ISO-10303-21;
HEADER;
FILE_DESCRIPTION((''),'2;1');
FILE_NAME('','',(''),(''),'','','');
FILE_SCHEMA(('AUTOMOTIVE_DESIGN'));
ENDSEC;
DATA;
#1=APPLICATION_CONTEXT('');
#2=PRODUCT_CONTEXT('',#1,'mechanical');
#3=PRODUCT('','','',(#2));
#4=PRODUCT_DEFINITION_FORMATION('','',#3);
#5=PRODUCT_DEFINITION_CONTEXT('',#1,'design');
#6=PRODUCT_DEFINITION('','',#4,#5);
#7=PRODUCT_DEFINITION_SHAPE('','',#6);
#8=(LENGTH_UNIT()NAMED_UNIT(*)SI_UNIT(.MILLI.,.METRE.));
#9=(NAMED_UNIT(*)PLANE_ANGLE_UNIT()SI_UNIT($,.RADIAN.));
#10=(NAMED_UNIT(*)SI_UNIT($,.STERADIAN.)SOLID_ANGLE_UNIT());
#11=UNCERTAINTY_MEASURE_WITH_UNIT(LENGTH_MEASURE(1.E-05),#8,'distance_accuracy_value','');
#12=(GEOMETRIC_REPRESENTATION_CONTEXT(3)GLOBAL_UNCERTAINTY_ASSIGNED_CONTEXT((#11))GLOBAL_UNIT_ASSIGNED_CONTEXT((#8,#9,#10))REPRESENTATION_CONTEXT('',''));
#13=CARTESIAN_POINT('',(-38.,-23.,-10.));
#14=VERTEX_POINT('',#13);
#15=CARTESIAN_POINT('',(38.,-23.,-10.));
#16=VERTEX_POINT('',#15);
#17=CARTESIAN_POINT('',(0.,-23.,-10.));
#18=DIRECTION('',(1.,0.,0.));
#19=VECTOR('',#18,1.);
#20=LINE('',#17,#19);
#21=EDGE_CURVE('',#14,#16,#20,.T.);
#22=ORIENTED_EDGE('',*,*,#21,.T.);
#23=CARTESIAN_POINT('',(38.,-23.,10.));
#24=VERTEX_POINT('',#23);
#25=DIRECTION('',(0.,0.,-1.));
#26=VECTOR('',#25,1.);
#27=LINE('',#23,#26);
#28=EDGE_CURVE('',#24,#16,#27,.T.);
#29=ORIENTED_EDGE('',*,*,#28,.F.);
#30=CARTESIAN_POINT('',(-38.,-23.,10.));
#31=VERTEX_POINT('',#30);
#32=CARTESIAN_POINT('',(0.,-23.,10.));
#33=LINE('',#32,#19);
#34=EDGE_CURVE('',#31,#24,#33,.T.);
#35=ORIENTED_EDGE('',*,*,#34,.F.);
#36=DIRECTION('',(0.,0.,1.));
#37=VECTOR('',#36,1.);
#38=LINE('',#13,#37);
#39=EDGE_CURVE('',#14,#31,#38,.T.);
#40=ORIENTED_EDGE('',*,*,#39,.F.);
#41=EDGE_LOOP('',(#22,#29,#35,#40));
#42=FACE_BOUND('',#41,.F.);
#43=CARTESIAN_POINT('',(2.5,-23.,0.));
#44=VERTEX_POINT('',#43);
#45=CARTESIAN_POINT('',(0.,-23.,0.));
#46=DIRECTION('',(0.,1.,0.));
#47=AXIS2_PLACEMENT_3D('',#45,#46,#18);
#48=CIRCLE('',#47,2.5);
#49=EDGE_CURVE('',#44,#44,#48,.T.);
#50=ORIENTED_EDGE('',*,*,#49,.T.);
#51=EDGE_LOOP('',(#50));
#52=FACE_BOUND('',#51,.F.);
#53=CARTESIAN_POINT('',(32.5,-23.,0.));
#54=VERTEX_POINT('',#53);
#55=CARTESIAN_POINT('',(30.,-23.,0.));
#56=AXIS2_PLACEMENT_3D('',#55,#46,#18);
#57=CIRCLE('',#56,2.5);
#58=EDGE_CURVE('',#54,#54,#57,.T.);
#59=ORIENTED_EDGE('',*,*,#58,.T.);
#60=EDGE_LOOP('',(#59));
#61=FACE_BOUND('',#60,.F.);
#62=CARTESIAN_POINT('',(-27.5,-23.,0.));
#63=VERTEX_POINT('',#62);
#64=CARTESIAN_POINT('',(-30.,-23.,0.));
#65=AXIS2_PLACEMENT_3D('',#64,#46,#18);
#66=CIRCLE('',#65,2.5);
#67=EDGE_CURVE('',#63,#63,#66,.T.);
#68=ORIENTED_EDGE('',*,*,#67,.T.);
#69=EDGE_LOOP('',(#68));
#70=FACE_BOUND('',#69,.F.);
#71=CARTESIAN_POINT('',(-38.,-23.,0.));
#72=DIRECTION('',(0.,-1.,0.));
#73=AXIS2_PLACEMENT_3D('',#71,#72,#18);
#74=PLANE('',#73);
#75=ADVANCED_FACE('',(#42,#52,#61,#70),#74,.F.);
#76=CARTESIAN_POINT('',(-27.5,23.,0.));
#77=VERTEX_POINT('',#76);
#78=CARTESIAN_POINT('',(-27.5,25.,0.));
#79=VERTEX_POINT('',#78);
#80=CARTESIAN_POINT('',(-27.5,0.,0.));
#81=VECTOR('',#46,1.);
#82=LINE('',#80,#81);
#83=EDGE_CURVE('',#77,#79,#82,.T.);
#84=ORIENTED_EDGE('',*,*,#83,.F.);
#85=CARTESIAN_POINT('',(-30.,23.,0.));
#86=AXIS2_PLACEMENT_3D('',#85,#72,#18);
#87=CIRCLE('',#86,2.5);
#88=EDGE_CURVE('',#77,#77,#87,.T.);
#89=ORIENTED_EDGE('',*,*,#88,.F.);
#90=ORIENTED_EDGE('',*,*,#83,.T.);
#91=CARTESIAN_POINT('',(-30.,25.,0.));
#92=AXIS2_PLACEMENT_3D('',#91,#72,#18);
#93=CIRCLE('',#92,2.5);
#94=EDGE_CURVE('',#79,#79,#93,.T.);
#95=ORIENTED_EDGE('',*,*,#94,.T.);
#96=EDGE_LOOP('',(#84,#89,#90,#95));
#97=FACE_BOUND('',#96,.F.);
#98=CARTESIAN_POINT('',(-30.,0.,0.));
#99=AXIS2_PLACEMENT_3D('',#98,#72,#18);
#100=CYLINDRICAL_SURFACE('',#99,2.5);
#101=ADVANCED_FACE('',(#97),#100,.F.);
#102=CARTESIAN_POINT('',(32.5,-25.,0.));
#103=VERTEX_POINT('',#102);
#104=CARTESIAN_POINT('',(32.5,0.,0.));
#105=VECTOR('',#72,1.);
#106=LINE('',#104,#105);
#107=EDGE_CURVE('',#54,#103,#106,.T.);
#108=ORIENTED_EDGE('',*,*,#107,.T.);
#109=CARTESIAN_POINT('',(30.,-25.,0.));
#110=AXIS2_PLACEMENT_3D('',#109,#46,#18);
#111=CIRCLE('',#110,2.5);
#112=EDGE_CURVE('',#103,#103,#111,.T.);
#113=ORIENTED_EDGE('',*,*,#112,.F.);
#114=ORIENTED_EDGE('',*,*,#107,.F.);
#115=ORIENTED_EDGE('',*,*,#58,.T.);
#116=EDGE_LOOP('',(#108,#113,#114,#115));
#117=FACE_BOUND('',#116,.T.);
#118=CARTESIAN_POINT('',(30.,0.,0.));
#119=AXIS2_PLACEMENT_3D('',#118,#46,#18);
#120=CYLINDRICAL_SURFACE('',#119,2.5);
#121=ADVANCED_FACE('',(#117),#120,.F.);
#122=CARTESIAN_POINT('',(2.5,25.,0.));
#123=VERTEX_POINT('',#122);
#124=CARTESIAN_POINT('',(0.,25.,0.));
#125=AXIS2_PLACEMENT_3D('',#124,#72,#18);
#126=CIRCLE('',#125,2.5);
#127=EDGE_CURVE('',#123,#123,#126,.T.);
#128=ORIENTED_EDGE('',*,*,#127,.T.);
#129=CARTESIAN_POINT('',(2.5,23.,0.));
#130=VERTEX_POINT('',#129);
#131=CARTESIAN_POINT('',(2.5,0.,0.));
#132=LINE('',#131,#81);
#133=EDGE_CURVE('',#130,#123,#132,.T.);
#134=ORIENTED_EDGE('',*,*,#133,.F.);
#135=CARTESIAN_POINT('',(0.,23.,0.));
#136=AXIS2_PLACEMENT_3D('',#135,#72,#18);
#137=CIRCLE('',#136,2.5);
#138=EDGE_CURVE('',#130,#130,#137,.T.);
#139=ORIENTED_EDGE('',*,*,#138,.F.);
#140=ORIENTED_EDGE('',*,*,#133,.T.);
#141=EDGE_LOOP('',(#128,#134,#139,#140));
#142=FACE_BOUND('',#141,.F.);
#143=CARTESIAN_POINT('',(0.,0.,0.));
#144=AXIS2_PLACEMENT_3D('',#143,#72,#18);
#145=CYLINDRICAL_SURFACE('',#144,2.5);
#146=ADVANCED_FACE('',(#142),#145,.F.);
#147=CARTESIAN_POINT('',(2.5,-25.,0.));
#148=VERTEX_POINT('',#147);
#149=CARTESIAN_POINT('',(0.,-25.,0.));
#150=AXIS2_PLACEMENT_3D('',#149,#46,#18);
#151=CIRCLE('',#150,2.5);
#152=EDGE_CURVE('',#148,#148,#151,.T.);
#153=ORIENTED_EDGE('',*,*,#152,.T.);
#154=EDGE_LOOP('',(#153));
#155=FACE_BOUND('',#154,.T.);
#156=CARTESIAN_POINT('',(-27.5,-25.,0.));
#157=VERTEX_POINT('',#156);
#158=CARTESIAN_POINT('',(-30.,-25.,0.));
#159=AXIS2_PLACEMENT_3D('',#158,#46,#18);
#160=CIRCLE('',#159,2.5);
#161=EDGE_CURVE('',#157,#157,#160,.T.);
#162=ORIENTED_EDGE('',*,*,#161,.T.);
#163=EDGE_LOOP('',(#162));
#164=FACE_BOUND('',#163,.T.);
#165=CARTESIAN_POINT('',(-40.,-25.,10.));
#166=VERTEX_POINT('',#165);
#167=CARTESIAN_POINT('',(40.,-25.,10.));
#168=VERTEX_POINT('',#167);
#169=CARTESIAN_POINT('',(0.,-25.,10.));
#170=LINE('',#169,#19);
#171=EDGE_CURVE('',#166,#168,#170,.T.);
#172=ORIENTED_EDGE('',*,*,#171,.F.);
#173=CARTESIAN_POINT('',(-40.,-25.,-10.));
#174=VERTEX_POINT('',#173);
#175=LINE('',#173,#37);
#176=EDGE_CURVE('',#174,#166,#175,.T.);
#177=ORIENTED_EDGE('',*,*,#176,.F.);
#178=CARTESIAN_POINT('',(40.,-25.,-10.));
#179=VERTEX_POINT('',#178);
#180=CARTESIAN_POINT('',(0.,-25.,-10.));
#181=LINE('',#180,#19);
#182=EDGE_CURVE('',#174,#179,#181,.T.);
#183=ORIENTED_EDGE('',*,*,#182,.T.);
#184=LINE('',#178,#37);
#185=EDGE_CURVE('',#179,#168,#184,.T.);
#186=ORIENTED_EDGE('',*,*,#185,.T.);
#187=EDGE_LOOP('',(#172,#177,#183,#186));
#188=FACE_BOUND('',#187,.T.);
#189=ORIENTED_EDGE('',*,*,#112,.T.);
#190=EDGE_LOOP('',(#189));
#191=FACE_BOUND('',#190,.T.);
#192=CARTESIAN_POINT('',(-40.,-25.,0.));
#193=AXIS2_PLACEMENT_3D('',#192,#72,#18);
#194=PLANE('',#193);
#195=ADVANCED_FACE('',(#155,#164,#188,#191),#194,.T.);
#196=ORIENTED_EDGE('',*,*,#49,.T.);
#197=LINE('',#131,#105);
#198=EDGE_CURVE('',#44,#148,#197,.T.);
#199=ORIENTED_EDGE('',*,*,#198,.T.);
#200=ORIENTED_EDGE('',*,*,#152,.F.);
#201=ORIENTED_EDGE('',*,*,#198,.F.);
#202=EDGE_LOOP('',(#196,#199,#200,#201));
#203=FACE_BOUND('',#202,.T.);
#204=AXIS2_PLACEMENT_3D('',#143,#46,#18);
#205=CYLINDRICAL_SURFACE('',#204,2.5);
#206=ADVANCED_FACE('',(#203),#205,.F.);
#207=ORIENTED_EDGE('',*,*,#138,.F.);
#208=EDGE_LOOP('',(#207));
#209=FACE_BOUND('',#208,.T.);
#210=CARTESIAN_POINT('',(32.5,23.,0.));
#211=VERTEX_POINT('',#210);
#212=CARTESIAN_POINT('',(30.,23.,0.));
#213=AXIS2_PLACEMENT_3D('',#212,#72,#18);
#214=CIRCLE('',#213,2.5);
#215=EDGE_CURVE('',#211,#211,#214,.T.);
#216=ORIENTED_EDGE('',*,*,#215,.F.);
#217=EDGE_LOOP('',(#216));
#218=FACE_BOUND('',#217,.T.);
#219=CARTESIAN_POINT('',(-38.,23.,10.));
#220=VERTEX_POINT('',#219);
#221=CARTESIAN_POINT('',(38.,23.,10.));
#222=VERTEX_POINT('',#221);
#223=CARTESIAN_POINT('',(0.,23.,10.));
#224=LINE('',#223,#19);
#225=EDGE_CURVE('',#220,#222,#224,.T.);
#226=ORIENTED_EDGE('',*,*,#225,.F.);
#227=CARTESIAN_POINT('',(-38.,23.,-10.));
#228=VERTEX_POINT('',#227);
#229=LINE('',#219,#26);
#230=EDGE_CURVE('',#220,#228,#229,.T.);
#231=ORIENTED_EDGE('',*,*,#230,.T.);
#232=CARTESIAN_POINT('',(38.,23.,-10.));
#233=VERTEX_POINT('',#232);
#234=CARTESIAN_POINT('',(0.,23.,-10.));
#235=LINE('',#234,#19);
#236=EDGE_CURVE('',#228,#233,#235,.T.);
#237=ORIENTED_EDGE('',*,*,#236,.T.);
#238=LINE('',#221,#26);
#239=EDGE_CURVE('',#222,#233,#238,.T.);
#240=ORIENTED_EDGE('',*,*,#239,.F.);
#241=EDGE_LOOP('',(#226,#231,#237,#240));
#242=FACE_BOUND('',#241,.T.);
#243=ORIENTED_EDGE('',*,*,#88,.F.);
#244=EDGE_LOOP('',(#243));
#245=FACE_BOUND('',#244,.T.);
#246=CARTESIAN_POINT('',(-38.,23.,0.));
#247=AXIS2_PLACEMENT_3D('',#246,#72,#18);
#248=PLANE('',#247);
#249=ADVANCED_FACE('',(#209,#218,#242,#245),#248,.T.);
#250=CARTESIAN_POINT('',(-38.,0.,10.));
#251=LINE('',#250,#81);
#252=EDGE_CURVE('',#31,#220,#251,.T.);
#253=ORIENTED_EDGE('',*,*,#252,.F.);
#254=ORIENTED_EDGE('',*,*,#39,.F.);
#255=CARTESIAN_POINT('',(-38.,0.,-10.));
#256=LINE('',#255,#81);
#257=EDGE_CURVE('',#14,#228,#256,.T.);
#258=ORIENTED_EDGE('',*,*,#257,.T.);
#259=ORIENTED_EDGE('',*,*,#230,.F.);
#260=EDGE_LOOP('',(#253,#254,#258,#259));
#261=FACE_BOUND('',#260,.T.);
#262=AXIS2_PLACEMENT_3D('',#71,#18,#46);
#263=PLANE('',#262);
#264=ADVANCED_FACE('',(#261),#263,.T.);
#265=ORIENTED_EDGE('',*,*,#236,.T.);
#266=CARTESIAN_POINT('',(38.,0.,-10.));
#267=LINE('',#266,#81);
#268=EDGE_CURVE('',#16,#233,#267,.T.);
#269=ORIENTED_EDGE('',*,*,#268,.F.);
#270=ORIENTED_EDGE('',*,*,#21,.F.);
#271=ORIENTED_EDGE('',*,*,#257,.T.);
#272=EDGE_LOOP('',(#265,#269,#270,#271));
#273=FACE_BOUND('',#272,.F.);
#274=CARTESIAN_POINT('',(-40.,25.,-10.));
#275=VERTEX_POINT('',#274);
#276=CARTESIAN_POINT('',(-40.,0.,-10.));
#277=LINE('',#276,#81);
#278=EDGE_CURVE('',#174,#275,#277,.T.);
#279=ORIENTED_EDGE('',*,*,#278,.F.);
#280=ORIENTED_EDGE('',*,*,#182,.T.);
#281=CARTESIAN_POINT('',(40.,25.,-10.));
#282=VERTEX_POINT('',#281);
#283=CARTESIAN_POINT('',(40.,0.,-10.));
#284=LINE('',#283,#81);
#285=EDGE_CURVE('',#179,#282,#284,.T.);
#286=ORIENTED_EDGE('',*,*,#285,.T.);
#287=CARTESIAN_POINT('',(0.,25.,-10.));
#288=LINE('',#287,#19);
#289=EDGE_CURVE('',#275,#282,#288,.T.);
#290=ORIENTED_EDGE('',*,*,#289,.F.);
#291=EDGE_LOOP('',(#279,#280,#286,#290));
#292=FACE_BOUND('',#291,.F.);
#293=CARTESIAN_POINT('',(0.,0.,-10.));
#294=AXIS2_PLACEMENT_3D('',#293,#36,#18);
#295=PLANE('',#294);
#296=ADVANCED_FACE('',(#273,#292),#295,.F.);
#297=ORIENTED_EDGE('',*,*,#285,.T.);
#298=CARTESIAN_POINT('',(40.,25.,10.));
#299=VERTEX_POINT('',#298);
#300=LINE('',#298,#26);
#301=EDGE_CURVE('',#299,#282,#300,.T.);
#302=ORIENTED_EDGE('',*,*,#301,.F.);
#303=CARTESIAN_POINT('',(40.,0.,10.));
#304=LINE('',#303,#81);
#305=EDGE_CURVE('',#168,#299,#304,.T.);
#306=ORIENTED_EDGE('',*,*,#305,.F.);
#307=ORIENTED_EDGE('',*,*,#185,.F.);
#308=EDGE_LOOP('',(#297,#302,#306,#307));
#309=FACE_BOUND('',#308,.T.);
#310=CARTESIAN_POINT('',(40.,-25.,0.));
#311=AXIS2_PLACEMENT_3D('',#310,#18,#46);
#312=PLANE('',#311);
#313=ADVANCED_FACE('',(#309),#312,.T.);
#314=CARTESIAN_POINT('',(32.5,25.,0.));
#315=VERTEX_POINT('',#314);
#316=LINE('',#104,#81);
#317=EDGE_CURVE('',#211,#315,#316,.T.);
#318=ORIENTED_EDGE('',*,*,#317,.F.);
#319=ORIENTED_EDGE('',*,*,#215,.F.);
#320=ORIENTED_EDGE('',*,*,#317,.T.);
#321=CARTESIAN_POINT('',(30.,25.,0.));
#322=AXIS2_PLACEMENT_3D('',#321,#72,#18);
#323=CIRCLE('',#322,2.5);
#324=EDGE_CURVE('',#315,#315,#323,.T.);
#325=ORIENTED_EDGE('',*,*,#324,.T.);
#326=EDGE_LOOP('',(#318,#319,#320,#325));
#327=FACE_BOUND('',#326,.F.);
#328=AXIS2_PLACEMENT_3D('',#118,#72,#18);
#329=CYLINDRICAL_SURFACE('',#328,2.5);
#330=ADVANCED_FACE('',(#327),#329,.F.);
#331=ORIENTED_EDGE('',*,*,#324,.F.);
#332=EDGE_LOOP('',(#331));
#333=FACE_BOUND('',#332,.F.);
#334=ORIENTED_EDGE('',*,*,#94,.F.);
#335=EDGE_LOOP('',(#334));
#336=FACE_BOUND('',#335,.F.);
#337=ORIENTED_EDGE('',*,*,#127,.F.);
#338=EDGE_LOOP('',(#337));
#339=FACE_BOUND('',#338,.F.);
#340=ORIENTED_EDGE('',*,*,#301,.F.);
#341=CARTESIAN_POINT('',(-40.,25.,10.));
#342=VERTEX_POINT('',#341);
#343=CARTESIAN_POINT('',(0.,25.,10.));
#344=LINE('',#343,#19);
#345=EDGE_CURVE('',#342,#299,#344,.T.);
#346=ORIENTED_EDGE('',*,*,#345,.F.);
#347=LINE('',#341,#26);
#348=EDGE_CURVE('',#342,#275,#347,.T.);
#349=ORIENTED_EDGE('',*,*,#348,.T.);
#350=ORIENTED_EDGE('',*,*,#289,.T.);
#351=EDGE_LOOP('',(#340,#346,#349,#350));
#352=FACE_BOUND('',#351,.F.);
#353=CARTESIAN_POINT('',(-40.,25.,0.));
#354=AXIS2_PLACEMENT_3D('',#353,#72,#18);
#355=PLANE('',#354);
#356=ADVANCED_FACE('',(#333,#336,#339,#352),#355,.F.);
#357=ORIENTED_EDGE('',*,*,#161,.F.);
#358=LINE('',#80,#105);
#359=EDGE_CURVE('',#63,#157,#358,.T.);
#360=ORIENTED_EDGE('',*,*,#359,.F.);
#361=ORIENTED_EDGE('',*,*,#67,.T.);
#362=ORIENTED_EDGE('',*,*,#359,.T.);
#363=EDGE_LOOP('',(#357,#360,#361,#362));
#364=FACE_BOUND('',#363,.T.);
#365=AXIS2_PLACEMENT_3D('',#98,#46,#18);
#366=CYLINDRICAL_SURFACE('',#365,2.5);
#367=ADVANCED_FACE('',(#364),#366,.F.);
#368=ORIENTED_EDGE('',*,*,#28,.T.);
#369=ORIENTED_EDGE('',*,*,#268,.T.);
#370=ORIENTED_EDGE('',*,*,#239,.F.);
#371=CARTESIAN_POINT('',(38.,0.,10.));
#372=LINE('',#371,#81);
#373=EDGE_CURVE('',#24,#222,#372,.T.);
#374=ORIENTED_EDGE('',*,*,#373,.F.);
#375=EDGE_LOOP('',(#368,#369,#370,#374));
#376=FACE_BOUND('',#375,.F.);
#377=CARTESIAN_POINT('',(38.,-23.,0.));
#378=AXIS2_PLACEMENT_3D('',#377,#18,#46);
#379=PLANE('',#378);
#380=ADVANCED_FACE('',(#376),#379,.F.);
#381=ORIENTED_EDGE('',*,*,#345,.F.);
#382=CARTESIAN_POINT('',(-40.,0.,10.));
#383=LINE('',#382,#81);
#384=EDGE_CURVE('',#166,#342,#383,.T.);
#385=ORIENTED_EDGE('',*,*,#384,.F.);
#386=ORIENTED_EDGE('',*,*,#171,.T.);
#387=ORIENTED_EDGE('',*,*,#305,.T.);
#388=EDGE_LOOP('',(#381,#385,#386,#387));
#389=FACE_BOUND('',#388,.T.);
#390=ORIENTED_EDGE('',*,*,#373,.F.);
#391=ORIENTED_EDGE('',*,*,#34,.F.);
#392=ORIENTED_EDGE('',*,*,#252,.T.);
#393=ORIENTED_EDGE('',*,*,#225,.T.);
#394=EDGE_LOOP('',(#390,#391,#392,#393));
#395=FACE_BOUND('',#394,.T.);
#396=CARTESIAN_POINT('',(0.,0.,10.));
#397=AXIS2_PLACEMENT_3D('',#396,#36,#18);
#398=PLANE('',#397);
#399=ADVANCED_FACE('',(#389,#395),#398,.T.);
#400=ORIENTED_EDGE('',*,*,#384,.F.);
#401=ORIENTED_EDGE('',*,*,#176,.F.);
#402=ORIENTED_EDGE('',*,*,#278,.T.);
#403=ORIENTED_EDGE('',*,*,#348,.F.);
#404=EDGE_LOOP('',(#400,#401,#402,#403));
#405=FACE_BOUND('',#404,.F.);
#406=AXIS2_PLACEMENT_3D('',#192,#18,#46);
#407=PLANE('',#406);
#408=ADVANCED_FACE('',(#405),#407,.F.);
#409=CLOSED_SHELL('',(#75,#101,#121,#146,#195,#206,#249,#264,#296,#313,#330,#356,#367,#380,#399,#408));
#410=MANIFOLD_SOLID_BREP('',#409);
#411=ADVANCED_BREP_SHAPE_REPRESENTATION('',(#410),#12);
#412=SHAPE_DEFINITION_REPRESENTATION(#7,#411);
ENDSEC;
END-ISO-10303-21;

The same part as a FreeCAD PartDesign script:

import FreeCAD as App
import Part
import Sketcher

V = App.Vector
Q = App.Units.Quantity


def add_polygon(sketch, points):
    """Adds a closed chain of lines whose ends are joined by coincident constraints."""
    first, n = sketch.GeometryCount, len(points)
    for a, b in zip(points, points[1:] + points[:1]):
        sketch.addGeometry(Part.LineSegment(App.Vector(*a, 0), App.Vector(*b, 0)), False)
    for i in range(n):
        sketch.addConstraint(Sketcher.Constraint("Coincident", first + i, 2, first + (i + 1) % n, 1))

doc = App.newDocument("Part")
body = doc.addObject("PartDesign::Body", "Body")

# Sketch on XY plane
sketch1 = body.newObject("Sketcher::SketchObject", "Sketch")
sketch1.AttachmentSupport = (doc.getObject("XY_Plane"), [""])
sketch1.MapMode = "FlatFace"
add_polygon(sketch1, [(-40, 25), (-40, -25), (40, -25), (40, 25)])  # lines 0-3
add_polygon(sketch1, [(38, -23), (-38, -23), (-38, 23), (38, 23)])  # lines 4-7
sketch1.addConstraint(Sketcher.Constraint("Vertical", 0))
sketch1.addConstraint(Sketcher.Constraint("Horizontal", 1))
sketch1.addConstraint(Sketcher.Constraint("Vertical", 2))
sketch1.addConstraint(Sketcher.Constraint("Horizontal", 3))
sketch1.addConstraint(Sketcher.Constraint("Horizontal", 4))
sketch1.addConstraint(Sketcher.Constraint("Vertical", 5))
sketch1.addConstraint(Sketcher.Constraint("Horizontal", 6))
sketch1.addConstraint(Sketcher.Constraint("Vertical", 7))
sketch1.addConstraint(Sketcher.Constraint("Symmetric", 0, 2, 2, 2, -1, 1))
sketch1.addConstraint(Sketcher.Constraint("Symmetric", 4, 2, 6, 2, -1, 1))
sketch1.addConstraint(Sketcher.Constraint("DistanceX", 1, 1, 1, 2, Q("80 mm")))
sketch1.addConstraint(Sketcher.Constraint("DistanceX", 4, 2, 4, 1, Q("76 mm")))
sketch1.addConstraint(Sketcher.Constraint("DistanceY", 0, 2, 0, 1, Q("50 mm")))
sketch1.addConstraint(Sketcher.Constraint("DistanceY", 5, 1, 5, 2, Q("46 mm")))
pad1 = body.newObject("PartDesign::Pad", "Pad")
pad1.Profile = sketch1
pad1.Type = "TwoLengths"
pad1.Length = 10
pad1.Length2 = 10

# Sketch on XZ plane
sketch2 = body.newObject("Sketcher::SketchObject", "Sketch001")
sketch2.AttachmentSupport = (doc.getObject("XZ_Plane"), [""])
sketch2.MapMode = "FlatFace"
sketch2.addGeometry(Part.Circle(V(-30, 0, 0), V(0, 0, 1), 2.5), False)
sketch2.addGeometry(Part.Circle(V(0, 0, 0), V(0, 0, 1), 2.5), False)
sketch2.addGeometry(Part.Circle(V(30, 0, 0), V(0, 0, 1), 2.5), False)
sketch2.addConstraint(Sketcher.Constraint("Coincident", 1, 3, -1, 1))
sketch2.addConstraint(Sketcher.Constraint("Equal", 0, 1))
sketch2.addConstraint(Sketcher.Constraint("Equal", 1, 2))
sketch2.addConstraint(Sketcher.Constraint("Symmetric", 0, 3, 2, 3, -1, 1))
sketch2.addConstraint(Sketcher.Constraint("PointOnObject", 0, 3, -1))
sketch2.addConstraint(Sketcher.Constraint("Diameter", 0, Q("5 mm")))
sketch2.addConstraint(Sketcher.Constraint("DistanceX", 0, 3, -1, 1, Q("30 mm")))
pocket1 = body.newObject("PartDesign::Pocket", "Pocket")
pocket1.Profile = sketch2
pocket1.Type = "ThroughAll"
pocket1.Midplane = True

doc.recompute()
